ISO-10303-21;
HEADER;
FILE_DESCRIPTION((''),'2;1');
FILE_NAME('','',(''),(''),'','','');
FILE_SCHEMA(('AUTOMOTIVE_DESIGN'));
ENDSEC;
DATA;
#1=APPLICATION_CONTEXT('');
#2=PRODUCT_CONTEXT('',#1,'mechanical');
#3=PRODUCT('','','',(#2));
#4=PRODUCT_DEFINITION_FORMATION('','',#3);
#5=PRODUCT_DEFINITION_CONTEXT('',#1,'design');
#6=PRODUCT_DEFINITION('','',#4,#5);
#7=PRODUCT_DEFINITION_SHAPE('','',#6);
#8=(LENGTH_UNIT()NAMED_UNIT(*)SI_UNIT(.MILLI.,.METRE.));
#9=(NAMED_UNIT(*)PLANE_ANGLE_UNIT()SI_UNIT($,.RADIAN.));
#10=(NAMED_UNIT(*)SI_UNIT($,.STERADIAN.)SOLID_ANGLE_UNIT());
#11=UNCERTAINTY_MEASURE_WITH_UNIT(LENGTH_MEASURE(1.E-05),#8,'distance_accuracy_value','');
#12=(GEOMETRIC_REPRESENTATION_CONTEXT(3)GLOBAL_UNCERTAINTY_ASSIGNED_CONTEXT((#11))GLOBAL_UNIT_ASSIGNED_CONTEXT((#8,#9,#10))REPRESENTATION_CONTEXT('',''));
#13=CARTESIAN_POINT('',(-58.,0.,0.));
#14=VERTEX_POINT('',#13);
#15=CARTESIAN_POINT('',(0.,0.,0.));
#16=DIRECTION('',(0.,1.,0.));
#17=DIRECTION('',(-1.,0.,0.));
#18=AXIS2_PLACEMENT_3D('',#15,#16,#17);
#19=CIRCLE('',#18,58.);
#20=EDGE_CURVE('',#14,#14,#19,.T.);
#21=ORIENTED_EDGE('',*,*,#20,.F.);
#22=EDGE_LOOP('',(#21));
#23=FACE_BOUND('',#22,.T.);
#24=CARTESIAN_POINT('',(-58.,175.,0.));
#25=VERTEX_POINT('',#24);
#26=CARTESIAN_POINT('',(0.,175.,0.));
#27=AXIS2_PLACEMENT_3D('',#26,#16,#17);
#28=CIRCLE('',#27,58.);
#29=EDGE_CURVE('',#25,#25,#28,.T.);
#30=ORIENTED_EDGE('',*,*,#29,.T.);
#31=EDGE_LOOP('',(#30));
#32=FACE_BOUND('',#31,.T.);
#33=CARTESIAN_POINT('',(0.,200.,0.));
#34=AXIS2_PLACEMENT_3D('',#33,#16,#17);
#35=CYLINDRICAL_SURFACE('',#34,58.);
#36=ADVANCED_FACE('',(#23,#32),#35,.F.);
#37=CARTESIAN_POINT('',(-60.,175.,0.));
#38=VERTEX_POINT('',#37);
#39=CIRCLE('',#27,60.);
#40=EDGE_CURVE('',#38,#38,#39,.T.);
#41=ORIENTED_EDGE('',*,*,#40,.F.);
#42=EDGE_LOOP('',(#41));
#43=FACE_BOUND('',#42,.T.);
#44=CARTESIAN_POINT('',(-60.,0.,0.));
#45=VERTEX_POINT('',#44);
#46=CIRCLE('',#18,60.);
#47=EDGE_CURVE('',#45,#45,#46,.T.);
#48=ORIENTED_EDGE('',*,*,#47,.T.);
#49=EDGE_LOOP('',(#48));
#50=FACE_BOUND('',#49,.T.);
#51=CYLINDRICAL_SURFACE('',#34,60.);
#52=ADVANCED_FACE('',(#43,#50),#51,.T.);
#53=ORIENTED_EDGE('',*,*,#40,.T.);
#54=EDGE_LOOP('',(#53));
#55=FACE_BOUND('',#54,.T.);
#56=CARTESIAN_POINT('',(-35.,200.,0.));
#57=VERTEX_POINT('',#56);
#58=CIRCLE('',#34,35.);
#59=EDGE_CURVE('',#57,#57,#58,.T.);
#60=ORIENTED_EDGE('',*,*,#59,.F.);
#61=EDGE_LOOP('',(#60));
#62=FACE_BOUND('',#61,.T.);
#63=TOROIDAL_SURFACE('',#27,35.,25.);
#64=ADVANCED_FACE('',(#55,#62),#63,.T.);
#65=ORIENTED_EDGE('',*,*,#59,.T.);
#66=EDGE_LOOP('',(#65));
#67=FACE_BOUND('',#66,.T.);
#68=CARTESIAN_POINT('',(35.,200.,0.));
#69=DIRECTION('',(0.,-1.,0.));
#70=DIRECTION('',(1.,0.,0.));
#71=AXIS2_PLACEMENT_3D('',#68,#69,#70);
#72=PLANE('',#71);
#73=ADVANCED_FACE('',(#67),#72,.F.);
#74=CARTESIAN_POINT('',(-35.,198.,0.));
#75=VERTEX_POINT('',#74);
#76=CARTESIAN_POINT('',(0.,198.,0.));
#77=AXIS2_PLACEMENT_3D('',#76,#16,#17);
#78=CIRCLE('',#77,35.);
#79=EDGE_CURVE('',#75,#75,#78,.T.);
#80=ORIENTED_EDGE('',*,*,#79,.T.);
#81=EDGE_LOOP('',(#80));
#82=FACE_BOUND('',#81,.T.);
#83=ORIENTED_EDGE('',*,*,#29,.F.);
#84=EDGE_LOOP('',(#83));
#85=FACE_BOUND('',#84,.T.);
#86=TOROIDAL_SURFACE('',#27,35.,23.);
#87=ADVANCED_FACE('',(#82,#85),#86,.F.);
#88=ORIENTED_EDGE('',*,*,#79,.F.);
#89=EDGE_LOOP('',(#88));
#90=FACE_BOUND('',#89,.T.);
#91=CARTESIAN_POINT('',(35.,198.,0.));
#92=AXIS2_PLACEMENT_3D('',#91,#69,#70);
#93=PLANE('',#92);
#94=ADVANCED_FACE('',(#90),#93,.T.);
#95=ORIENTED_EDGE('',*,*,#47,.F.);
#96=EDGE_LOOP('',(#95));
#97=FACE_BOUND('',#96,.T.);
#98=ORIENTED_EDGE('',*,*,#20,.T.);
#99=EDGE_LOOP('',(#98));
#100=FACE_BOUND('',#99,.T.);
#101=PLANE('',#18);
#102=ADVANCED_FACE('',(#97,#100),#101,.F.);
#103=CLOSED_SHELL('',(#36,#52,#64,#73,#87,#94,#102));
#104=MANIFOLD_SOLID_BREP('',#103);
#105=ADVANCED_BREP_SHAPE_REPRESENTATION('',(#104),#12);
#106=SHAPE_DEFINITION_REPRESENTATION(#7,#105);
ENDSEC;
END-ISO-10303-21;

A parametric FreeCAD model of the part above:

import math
import FreeCAD as App
import Part
import Sketcher
from FreeCAD import Vector
Q = App.Units.Quantity


def faces_at(feature, points):
    """Names of the faces that lie closest to the given points."""
    faces = feature.Shape.Faces
    near = lambda p: min(range(len(faces)), key=lambda i: faces[i].distToShape(Part.Vertex(*p))[0])
    return sorted({f"Face{near(p) + 1}" for p in points})

doc = App.newDocument("Part")
body = doc.addObject("PartDesign::Body", "Body")

sketch1 = doc.addObject("Sketcher::SketchObject", "Sketch")
body.addObject(sketch1)
sketch1.AttachmentSupport = (doc.XY_Plane, [""])
sketch1.MapMode = "FlatFace"
sketch1.addGeometry(Part.LineSegment(Vector(0, 0, 0), Vector(60, 0, 0)), False)
sketch1.addGeometry(Part.LineSegment(Vector(60, 0, 0), Vector(60, 175, 0)), False)
sketch1.addGeometry(Part.ArcOfCircle(Part.Circle(Vector(35, 175, 0), Vector(0, 0, 1), 25), math.radians(0), math.radians(90)), False)
sketch1.addGeometry(Part.LineSegment(Vector(35, 200, 0), Vector(0, 200, 0)), False)
sketch1.addGeometry(Part.LineSegment(Vector(0, 200, 0), Vector(0, 0, 0)), False)
sketch1.addConstraint(Sketcher.Constraint("Coincident", 0, 2, 1, 1))
sketch1.addConstraint(Sketcher.Constraint("Tangent", 1, 2, 2, 1))
sketch1.addConstraint(Sketcher.Constraint("Tangent", 2, 2, 3, 1))
sketch1.addConstraint(Sketcher.Constraint("Coincident", 3, 2, 4, 1))
sketch1.addConstraint(Sketcher.Constraint("Coincident", 4, 2, 0, 1))
sketch1.addConstraint(Sketcher.Constraint("Horizontal", 0))
sketch1.addConstraint(Sketcher.Constraint("Vertical", 1))
sketch1.addConstraint(Sketcher.Constraint("Horizontal", 3))
sketch1.addConstraint(Sketcher.Constraint("Vertical", 4))
sketch1.addConstraint(Sketcher.Constraint("Coincident", 4, 2, -1, 1))
sketch1.addConstraint(Sketcher.Constraint("Radius", 2, Q("25 mm")))
sketch1.addConstraint(Sketcher.Constraint("DistanceX", 0, 1, 0, 2, Q("60 mm")))
sketch1.addConstraint(Sketcher.Constraint("DistanceY", 1, 1, 1, 2, Q("175 mm")))
revolution = doc.addObject("PartDesign::Revolution", "Revolution")
body.addObject(revolution)
revolution.Profile = sketch1
revolution.ReferenceAxis = (sketch1, ["V_Axis"])
revolution.Angle = 360
doc.recompute()

thickness = doc.addObject("PartDesign::Thickness", "Thickness")
body.addObject(thickness)
thickness.Base = (revolution, faces_at(revolution, [(0, 0, 0)]))
thickness.Value = 2
thickness.Reversed = True
thickness.Join = "Intersection"

doc.recompute()
